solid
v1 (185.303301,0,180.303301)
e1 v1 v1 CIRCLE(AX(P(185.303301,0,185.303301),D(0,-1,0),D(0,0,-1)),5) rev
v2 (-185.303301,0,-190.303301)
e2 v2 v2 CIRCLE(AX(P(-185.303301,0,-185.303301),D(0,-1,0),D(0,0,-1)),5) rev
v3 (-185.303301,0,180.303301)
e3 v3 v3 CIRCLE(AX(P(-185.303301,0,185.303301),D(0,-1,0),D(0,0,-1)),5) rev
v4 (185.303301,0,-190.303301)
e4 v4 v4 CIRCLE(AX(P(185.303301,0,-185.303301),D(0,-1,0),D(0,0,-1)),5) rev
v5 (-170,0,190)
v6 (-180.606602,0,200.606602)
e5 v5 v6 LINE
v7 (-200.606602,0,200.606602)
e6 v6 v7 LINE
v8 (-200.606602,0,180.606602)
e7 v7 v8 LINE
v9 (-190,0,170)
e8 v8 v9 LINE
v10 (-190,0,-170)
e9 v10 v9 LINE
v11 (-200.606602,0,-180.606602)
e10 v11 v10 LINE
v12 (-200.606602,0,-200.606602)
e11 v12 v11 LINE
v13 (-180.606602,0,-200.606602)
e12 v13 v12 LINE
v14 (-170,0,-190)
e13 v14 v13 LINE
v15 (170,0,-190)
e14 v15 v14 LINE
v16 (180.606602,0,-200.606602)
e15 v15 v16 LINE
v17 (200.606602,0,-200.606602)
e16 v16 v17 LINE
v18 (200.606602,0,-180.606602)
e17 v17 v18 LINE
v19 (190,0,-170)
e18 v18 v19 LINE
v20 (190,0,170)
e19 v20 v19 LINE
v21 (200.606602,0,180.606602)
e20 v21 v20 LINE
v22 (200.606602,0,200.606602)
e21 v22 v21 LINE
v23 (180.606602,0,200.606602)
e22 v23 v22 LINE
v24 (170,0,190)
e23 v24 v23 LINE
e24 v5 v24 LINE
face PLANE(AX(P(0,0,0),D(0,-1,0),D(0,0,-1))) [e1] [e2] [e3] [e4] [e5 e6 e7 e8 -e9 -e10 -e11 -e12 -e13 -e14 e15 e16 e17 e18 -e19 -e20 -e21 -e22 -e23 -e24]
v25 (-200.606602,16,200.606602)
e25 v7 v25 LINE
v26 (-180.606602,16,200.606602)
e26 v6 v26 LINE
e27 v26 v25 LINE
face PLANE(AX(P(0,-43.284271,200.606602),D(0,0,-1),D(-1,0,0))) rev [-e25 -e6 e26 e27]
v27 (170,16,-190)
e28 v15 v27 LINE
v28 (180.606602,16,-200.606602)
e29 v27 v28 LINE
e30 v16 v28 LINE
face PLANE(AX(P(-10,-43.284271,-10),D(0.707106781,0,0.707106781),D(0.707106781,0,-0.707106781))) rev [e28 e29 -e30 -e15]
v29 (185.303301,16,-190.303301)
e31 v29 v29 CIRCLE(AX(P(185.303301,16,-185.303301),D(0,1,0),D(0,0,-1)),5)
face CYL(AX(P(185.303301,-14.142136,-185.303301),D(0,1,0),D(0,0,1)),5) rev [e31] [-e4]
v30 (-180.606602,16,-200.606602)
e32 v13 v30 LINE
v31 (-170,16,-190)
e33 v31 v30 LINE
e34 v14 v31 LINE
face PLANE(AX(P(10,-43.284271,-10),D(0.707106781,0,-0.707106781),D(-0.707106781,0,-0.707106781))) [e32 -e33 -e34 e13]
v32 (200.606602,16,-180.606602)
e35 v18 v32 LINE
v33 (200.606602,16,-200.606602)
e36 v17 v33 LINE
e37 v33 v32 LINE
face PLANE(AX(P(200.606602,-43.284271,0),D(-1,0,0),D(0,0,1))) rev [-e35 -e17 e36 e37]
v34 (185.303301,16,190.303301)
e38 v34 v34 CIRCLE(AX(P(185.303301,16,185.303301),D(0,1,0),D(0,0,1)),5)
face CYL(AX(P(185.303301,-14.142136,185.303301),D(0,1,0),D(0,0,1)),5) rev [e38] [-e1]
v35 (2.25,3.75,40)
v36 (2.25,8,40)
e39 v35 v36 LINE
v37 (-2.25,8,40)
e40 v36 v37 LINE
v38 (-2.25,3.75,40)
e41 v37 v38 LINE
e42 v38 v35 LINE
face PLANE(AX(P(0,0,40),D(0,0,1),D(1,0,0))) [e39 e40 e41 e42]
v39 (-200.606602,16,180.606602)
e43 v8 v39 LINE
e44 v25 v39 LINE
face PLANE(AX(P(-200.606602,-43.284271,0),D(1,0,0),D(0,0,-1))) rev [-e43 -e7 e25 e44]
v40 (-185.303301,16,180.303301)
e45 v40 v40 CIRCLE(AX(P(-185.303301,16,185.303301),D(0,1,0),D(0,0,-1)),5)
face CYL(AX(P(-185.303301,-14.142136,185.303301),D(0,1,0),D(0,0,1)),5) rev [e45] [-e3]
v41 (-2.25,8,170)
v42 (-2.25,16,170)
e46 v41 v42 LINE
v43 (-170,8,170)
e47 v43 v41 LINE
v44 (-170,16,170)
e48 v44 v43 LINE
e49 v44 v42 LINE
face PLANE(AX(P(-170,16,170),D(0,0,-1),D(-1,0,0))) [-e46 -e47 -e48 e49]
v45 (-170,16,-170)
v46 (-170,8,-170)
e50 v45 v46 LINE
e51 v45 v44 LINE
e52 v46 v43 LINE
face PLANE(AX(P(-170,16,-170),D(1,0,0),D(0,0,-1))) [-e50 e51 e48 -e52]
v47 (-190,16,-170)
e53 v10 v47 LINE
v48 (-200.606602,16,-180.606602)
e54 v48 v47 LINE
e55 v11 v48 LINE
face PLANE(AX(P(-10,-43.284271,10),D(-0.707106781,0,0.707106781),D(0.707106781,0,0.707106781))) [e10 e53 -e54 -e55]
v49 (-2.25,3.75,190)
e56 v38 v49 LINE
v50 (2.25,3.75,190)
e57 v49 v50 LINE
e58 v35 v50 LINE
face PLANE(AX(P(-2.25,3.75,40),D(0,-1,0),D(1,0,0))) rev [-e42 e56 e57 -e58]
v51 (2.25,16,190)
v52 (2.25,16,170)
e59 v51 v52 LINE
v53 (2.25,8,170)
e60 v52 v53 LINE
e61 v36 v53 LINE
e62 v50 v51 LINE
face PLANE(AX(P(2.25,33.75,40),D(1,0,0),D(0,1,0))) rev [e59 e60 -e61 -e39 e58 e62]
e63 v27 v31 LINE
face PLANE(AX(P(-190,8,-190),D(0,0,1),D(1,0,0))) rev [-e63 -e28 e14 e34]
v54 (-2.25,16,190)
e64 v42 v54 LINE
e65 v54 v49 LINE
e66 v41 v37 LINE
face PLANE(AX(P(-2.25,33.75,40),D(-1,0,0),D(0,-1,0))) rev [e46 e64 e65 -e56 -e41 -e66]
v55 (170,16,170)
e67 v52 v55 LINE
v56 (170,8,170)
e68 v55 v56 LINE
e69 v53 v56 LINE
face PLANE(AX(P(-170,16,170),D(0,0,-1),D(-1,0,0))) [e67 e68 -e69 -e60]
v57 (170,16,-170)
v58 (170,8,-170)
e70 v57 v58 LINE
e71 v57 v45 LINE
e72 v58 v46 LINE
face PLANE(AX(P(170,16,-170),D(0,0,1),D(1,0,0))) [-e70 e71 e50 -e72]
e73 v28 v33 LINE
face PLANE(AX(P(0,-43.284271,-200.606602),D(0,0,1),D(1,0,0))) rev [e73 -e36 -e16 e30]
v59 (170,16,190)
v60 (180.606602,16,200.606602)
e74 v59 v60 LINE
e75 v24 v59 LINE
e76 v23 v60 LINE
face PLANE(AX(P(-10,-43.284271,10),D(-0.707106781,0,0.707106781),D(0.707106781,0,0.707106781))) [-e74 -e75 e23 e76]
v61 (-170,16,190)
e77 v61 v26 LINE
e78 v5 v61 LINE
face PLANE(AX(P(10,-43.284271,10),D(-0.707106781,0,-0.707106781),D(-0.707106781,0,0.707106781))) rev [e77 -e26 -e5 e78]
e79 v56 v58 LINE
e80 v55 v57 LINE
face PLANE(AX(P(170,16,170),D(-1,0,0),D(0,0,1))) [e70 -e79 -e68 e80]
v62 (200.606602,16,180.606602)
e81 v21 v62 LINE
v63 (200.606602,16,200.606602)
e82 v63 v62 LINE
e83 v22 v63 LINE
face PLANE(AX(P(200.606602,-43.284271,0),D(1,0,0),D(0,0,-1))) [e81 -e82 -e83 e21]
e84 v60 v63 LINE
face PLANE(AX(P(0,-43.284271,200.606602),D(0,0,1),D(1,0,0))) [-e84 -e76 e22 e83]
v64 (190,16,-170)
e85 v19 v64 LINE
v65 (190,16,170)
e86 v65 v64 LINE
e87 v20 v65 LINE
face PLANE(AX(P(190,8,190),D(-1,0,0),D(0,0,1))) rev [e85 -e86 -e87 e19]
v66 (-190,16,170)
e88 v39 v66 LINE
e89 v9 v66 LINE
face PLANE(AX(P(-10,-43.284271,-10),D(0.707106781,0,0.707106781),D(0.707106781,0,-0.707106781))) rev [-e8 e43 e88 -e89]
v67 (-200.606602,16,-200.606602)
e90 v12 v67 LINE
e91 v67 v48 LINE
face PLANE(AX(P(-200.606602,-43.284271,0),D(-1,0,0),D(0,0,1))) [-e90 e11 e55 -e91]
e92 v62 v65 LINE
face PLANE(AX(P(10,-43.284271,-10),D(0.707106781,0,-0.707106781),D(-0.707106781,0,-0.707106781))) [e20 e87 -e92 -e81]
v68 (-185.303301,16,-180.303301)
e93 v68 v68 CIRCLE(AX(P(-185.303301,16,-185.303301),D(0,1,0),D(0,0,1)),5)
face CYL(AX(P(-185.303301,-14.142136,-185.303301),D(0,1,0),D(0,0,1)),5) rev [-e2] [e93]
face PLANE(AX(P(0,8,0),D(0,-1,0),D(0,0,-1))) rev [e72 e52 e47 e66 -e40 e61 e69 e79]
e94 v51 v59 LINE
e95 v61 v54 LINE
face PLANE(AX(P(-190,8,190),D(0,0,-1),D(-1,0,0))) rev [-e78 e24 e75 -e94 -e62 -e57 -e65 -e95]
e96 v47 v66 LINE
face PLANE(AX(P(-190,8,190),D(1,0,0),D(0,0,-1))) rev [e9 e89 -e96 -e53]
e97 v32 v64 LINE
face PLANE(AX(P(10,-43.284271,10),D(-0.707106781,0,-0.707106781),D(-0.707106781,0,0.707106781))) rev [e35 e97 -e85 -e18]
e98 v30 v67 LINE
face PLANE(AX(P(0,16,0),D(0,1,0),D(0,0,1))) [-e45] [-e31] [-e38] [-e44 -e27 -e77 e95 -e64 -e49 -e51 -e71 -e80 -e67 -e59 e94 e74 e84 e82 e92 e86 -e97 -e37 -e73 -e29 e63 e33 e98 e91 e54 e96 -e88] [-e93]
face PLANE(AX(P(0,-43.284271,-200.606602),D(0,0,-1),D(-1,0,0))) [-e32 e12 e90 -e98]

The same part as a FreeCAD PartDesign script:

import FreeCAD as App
import Part
import Sketcher

V = App.Vector
Q = App.Units.Quantity

doc = App.newDocument("Part")
body = doc.addObject("PartDesign::Body", "Body")

sketch1 = doc.addObject("Sketcher::SketchObject", "Sketch")
body.addObject(sketch1)
sketch1.AttachmentSupport = (doc.XZ_Plane, [""])
sketch1.MapMode = "FlatFace"
sketch1.addGeometry(Part.LineSegment(V(-190, -190, 0), V(-190, 190, 0)), False)
sketch1.addGeometry(Part.LineSegment(V(-190, 190, 0), V(190, 190, 0)), False)
sketch1.addGeometry(Part.LineSegment(V(190, 190, 0), V(190, -190, 0)), False)
sketch1.addGeometry(Part.LineSegment(V(190, -190, 0), V(-190, -190, 0)), False)
sketch1.addConstraint(Sketcher.Constraint("Coincident", 0, 2, 1, 1))
sketch1.addConstraint(Sketcher.Constraint("Coincident", 1, 2, 2, 1))
sketch1.addConstraint(Sketcher.Constraint("Coincident", 2, 2, 3, 1))
sketch1.addConstraint(Sketcher.Constraint("Coincident", 3, 2, 0, 1))
sketch1.addConstraint(Sketcher.Constraint("Vertical", 0))
sketch1.addConstraint(Sketcher.Constraint("Horizontal", 1))
sketch1.addConstraint(Sketcher.Constraint("Vertical", 2))
sketch1.addConstraint(Sketcher.Constraint("Horizontal", 3))
sketch1.addConstraint(Sketcher.Constraint("Symmetric", 0, 2, 2, 2, -1, 1))
sketch1.addConstraint(Sketcher.Constraint("Equal", 3, 0))
sketch1.addConstraint(Sketcher.Constraint("DistanceX", 1, 1, 1, 2, Q("380 mm")))
pad1 = doc.addObject("PartDesign::Pad", "Pad")
body.addObject(pad1)
pad1.Profile = sketch1
pad1.Length = 8
pad1.Reversed = True

sketch2 = doc.addObject("Sketcher::SketchObject", "Sketch001")
body.addObject(sketch2)
sketch2.AttachmentSupport = (doc.XZ_Plane, [""])
sketch2.MapMode = "FlatFace"
sketch2.AttachmentOffset = App.Placement(V(0, 0, -8), App.Rotation())
sketch2.addGeometry(Part.LineSegment(V(-190, -190, 0), V(-190, 190, 0)), False)
sketch2.addGeometry(Part.LineSegment(V(-190, 190, 0), V(190, 190, 0)), False)
sketch2.addGeometry(Part.LineSegment(V(190, 190, 0), V(190, -190, 0)), False)
sketch2.addGeometry(Part.LineSegment(V(190, -190, 0), V(-190, -190, 0)), False)
sketch2.addGeometry(Part.LineSegment(V(170, 170, 0), V(-170, 170, 0)), False)
sketch2.addGeometry(Part.LineSegment(V(-170, 170, 0), V(-170, -170, 0)), False)
sketch2.addGeometry(Part.LineSegment(V(-170, -170, 0), V(170, -170, 0)), False)
sketch2.addGeometry(Part.LineSegment(V(170, -170, 0), V(170, 170, 0)), False)
sketch2.addConstraint(Sketcher.Constraint("Coincident", 0, 2, 1, 1))
sketch2.addConstraint(Sketcher.Constraint("Coincident", 1, 2, 2, 1))
sketch2.addConstraint(Sketcher.Constraint("Coincident", 2, 2, 3, 1))
sketch2.addConstraint(Sketcher.Constraint("Coincident", 3, 2, 0, 1))
sketch2.addConstraint(Sketcher.Constraint("Coincident", 4, 2, 5, 1))
sketch2.addConstraint(Sketcher.Constraint("Coincident", 5, 2, 6, 1))
sketch2.addConstraint(Sketcher.Constraint("Coincident", 6, 2, 7, 1))
sketch2.addConstraint(Sketcher.Constraint("Coincident", 7, 2, 4, 1))
sketch2.addConstraint(Sketcher.Constraint("Vertical", 0))
sketch2.addConstraint(Sketcher.Constraint("Horizontal", 1))
sketch2.addConstraint(Sketcher.Constraint("Vertical", 2))
sketch2.addConstraint(Sketcher.Constraint("Horizontal", 3))
sketch2.addConstraint(Sketcher.Constraint("Horizontal", 4))
sketch2.addConstraint(Sketcher.Constraint("Vertical", 5))
sketch2.addConstraint(Sketcher.Constraint("Horizontal", 6))
sketch2.addConstraint(Sketcher.Constraint("Vertical", 7))
sketch2.addConstraint(Sketcher.Constraint("Symmetric", 0, 2, 2, 2, -1, 1))
sketch2.addConstraint(Sketcher.Constraint("Symmetric", 4, 2, 6, 2, -1, 1))
sketch2.addConstraint(Sketcher.Constraint("Equal", 3, 0))
sketch2.addConstraint(Sketcher.Constraint("Equal", 6, 5))
sketch2.addConstraint(Sketcher.Constraint("DistanceX", 1, 1, 1, 2, Q("380 mm")))
sketch2.addConstraint(Sketcher.Constraint("DistanceX", 4, 2, 4, 1, Q("340 mm")))
pad2 = doc.addObject("PartDesign::Pad", "Pad001")
body.addObject(pad2)
pad2.Profile = sketch2
pad2.Length = 8
pad2.Reversed = True

sketch3 = doc.addObject("Sketcher::SketchObject", "Sketch002")
body.addObject(sketch3)
sketch3.AttachmentSupport = (doc.XZ_Plane, [""])
sketch3.MapMode = "FlatFace"
sketch3.AttachmentOffset = App.Placement(V(0, 0, -16), App.Rotation())
sketch3.addGeometry(Part.LineSegment(V(-201, -181, 0), V(-190, -170, 0)), False)
sketch3.addGeometry(Part.LineSegment(V(-190, -170, 0), V(-190, -190, 0)), False)
sketch3.addGeometry(Part.LineSegment(V(-190, -190, 0), V(-170, -190, 0)), False)
sketch3.addGeometry(Part.LineSegment(V(-170, -190, 0), V(-181, -201, 0)), False)
sketch3.addGeometry(Part.LineSegment(V(-181, -201, 0), V(-201, -201, 0)), False)
sketch3.addGeometry(Part.LineSegment(V(-201, -201, 0), V(-201, -181, 0)), False)
sketch3.addConstraint(Sketcher.Constraint("Coincident", 0, 2, 1, 1))
sketch3.addConstraint(Sketcher.Constraint("Coincident", 1, 2, 2, 1))
sketch3.addConstraint(Sketcher.Constraint("Coincident", 2, 2, 3, 1))
sketch3.addConstraint(Sketcher.Constraint("Coincident", 3, 2, 4, 1))
sketch3.addConstraint(Sketcher.Constraint("Coincident", 4, 2, 5, 1))
sketch3.addConstraint(Sketcher.Constraint("Coincident", 5, 2, 0, 1))
sketch3.addConstraint(Sketcher.Constraint("Vertical", 1))
sketch3.addConstraint(Sketcher.Constraint("Horizontal", 2))
sketch3.addConstraint(Sketcher.Constraint("Horizontal", 4))
sketch3.addConstraint(Sketcher.Constraint("Vertical", 5))
sketch3.addConstraint(Sketcher.Constraint("Parallel", 0, 3))
sketch3.addConstraint(Sketcher.Constraint("Equal", 2, 4))
sketch3.addConstraint(Sketcher.Constraint("Equal", 4, 1))
sketch3.addConstraint(Sketcher.Constraint("DistanceX", 2, 1, 2, 2, Q("20 mm")))
sketch3.addConstraint(Sketcher.Constraint("Angle", 0, Q("45 deg")))
sketch3.addConstraint(Sketcher.Constraint("Distance", 0, Q("15 mm")))
sketch3.addConstraint(Sketcher.Constraint("DistanceX", 0, 2, -1, 1, Q("190 mm")))
sketch3.addConstraint(Sketcher.Constraint("DistanceY", 0, 2, -1, 1, Q("170 mm")))
pad3 = doc.addObject("PartDesign::Pad", "Pad002")
body.addObject(pad3)
pad3.Profile = sketch3
pad3.Length = 16
doc.recompute()

mirrored = doc.addObject("PartDesign::Mirrored", "Mirrored")
body.addObject(mirrored)
mirrored.Originals = [pad3]
mirrored.MirrorPlane = (doc.YZ_Plane, [""])
body.Tip = mirrored
doc.recompute()

mirrored2 = doc.addObject("PartDesign::Mirrored", "Mirrored001")
body.addObject(mirrored2)
mirrored2.Originals = [pad3]
mirrored2.MirrorPlane = (doc.XY_Plane, [""])
body.Tip = mirrored2

sketch4 = doc.addObject("Sketcher::SketchObject", "Sketch003")
body.addObject(sketch4)
sketch4.AttachmentSupport = (doc.XZ_Plane, [""])
sketch4.MapMode = "FlatFace"
sketch4.AttachmentOffset = App.Placement(V(0, 0, -16), App.Rotation())
sketch4.addGeometry(Part.LineSegment(V(201, 181, 0), V(190, 170, 0)), False)
sketch4.addGeometry(Part.LineSegment(V(190, 170, 0), V(190, 190, 0)), False)
sketch4.addGeometry(Part.LineSegment(V(190, 190, 0), V(170, 190, 0)), False)
sketch4.addGeometry(Part.LineSegment(V(170, 190, 0), V(181, 201, 0)), False)
sketch4.addGeometry(Part.LineSegment(V(181, 201, 0), V(201, 201, 0)), False)
sketch4.addGeometry(Part.LineSegment(V(201, 201, 0), V(201, 181, 0)), False)
sketch4.addConstraint(Sketcher.Constraint("Coincident", 0, 2, 1, 1))
sketch4.addConstraint(Sketcher.Constraint("Coincident", 1, 2, 2, 1))
sketch4.addConstraint(Sketcher.Constraint("Coincident", 2, 2, 3, 1))
sketch4.addConstraint(Sketcher.Constraint("Coincident", 3, 2, 4, 1))
sketch4.addConstraint(Sketcher.Constraint("Coincident", 4, 2, 5, 1))
sketch4.addConstraint(Sketcher.Constraint("Coincident", 5, 2, 0, 1))
sketch4.addConstraint(Sketcher.Constraint("Vertical", 1))
sketch4.addConstraint(Sketcher.Constraint("Horizontal", 2))
sketch4.addConstraint(Sketcher.Constraint("Horizontal", 4))
sketch4.addConstraint(Sketcher.Constraint("Vertical", 5))
sketch4.addConstraint(Sketcher.Constraint("Parallel", 0, 3))
sketch4.addConstraint(Sketcher.Constraint("Equal", 2, 4))
sketch4.addConstraint(Sketcher.Constraint("Equal", 4, 1))
sketch4.addConstraint(Sketcher.Constraint("DistanceX", 2, 2, 2, 1, Q("20 mm")))
sketch4.addConstraint(Sketcher.Constraint("Angle", 0, Q("-135 deg")))
sketch4.addConstraint(Sketcher.Constraint("Distance", 0, Q("15 mm")))
sketch4.addConstraint(Sketcher.Constraint("DistanceX", -1, 1, 0, 2, Q("190 mm")))
sketch4.addConstraint(Sketcher.Constraint("DistanceY", -1, 1, 0, 2, Q("170 mm")))
pad4 = doc.addObject("PartDesign::Pad", "Pad003")
body.addObject(pad4)
pad4.Profile = sketch4
pad4.Length = 16

sketch5 = doc.addObject("Sketcher::SketchObject", "Sketch004")
body.addObject(sketch5)
sketch5.AttachmentSupport = (doc.XZ_Plane, [""])
sketch5.MapMode = "FlatFace"
sketch5.AttachmentOffset = App.Placement(V(0, 0, -16), App.Rotation())
sketch5.addGeometry(Part.Circle(V(-185, -185, 0), V(0, 0, 1), 5), False)
sketch5.addGeometry(Part.Circle(V(185, -185, 0), V(0, 0, 1), 5), False)
sketch5.addGeometry(Part.Circle(V(185, 185, 0), V(0, 0, 1), 5), False)
sketch5.addGeometry(Part.Circle(V(-185, 185, 0), V(0, 0, 1), 5), False)
sketch5.addConstraint(Sketcher.Constraint("Equal", 0, 1))
sketch5.addConstraint(Sketcher.Constraint("Equal", 1, 2))
sketch5.addConstraint(Sketcher.Constraint("Equal", 2, 3))
sketch5.addConstraint(Sketcher.Constraint("Symmetric", 0, 3, 2, 3, -1, 1))
sketch5.addConstraint(Sketcher.Constraint("Symmetric", 1, 3, 3, 3, -1, 1))
sketch5.addConstraint(Sketcher.Constraint("Symmetric", 0, 3, 1, 3, -2))
sketch5.addConstraint(Sketcher.Constraint("Diameter", 0, Q("10 mm")))
sketch5.addConstraint(Sketcher.Constraint("DistanceX", 0, 3, -1, 1, Q("185.303301 mm")))
sketch5.addConstraint(Sketcher.Constraint("DistanceY", 0, 3, -1, 1, Q("185.303301 mm")))
pocket1 = doc.addObject("PartDesign::Pocket", "Pocket")
body.addObject(pocket1)
pocket1.Profile = sketch5
pocket1.Length = 16
pocket1.Reversed = True

sketch6 = doc.addObject("Sketcher::SketchObject", "Sketch005")
body.addObject(sketch6)
sketch6.AttachmentSupport = (doc.XY_Plane, [""])
sketch6.MapMode = "FlatFace"
sketch6.AttachmentOffset = App.Placement(V(0, 0, 190), App.Rotation())
sketch6.addGeometry(Part.LineSegment(V(-2.2, 33.8, 0), V(-2.2, 3.8, 0)), False)
sketch6.addGeometry(Part.LineSegment(V(-2.2, 3.8, 0), V(2.2, 3.8, 0)), False)
sketch6.addGeometry(Part.LineSegment(V(2.2, 3.8, 0), V(2.2, 33.8, 0)), False)
sketch6.addGeometry(Part.LineSegment(V(2.2, 33.8, 0), V(-2.2, 33.8, 0)), False)
sketch6.addConstraint(Sketcher.Constraint("Coincident", 0, 2, 1, 1))
sketch6.addConstraint(Sketcher.Constraint("Coincident", 1, 2, 2, 1))
sketch6.addConstraint(Sketcher.Constraint("Coincident", 2, 2, 3, 1))
sketch6.addConstraint(Sketcher.Constraint("Coincident", 3, 2, 0, 1))
sketch6.addConstraint(Sketcher.Constraint("Vertical", 0))
sketch6.addConstraint(Sketcher.Constraint("Horizontal", 1))
sketch6.addConstraint(Sketcher.Constraint("Vertical", 2))
sketch6.addConstraint(Sketcher.Constraint("Horizontal", 3))
sketch6.addConstraint(Sketcher.Constraint("DistanceY", 0, 2, 0, 1, Q("30 mm")))
sketch6.addConstraint(Sketcher.Constraint("DistanceX", 1, 1, 1, 2, Q("4.5 mm")))
sketch6.addConstraint(Sketcher.Constraint("DistanceX", 0, 2, -1, 1, Q("2.25 mm")))
sketch6.addConstraint(Sketcher.Constraint("DistanceY", -1, 1, 0, 2, Q("3.75 mm")))
pocket2 = doc.addObject("PartDesign::Pocket", "Pocket001")
body.addObject(pocket2)
pocket2.Profile = sketch6
pocket2.Length = 150

doc.recompute()
